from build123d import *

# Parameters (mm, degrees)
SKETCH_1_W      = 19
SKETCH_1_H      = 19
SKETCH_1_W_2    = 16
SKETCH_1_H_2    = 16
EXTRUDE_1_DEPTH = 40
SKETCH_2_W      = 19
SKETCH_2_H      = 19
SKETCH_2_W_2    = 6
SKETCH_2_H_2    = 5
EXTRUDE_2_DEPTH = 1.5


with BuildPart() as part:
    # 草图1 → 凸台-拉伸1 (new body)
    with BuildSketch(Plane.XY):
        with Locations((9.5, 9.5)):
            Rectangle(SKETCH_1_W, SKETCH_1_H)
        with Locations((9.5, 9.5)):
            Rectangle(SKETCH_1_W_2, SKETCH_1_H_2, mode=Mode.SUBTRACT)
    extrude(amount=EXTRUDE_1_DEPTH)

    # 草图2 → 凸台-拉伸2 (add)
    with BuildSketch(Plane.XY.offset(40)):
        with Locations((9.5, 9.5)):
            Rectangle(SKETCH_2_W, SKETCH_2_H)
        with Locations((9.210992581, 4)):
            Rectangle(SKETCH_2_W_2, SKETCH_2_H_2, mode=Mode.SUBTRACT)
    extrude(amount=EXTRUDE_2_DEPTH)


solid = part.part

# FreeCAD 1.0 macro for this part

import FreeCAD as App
import Part
import Sketcher
Q = App.Units.Quantity

doc = App.newDocument("Part")
body = doc.addObject("PartDesign::Body", "Body")

sketch1 = doc.addObject("Sketcher::SketchObject", "Sketch")
body.addObject(sketch1)
sketch1.AttachmentSupport = (doc.XY_Plane, [""])
sketch1.MapMode = "FlatFace"
sketch1.addGeometry([
    Part.LineSegment(App.Vector(0, 19, 0), App.Vector(0, 0, 0)),
    Part.LineSegment(App.Vector(0, 0, 0), App.Vector(19, 0, 0)),
    Part.LineSegment(App.Vector(19, 0, 0), App.Vector(19, 19, 0)),
    Part.LineSegment(App.Vector(19, 19, 0), App.Vector(0, 19, 0)),
    Part.LineSegment(App.Vector(17.5, 1.5, 0), App.Vector(1.5, 1.5, 0)),
    Part.LineSegment(App.Vector(1.5, 1.5, 0), App.Vector(1.5, 17.5, 0)),
    Part.LineSegment(App.Vector(1.5, 17.5, 0), App.Vector(17.5, 17.5, 0)),
    Part.LineSegment(App.Vector(17.5, 17.5, 0), App.Vector(17.5, 1.5, 0)),
], False)
sketch1.addConstraint([
    Sketcher.Constraint("Coincident", 0, 2, 1, 1),
    Sketcher.Constraint("Coincident", 1, 2, 2, 1),
    Sketcher.Constraint("Coincident", 2, 2, 3, 1),
    Sketcher.Constraint("Coincident", 3, 2, 0, 1),
    Sketcher.Constraint("Coincident", 4, 2, 5, 1),
    Sketcher.Constraint("Coincident", 5, 2, 6, 1),
    Sketcher.Constraint("Coincident", 6, 2, 7, 1),
    Sketcher.Constraint("Coincident", 7, 2, 4, 1),
    Sketcher.Constraint("Vertical", 0),
    Sketcher.Constraint("Horizontal", 1),
    Sketcher.Constraint("Vertical", 2),
    Sketcher.Constraint("Horizontal", 3),
    Sketcher.Constraint("Horizontal", 4),
    Sketcher.Constraint("Vertical", 5),
    Sketcher.Constraint("Horizontal", 6),
    Sketcher.Constraint("Vertical", 7),
    Sketcher.Constraint("Coincident", 0, 2, -1, 1),
    Sketcher.Constraint("Equal", 3, 0),
    Sketcher.Constraint("Equal", 6, 5),
    Sketcher.Constraint("DistanceX", 1, 1, 1, 2, Q("19 mm")),
    Sketcher.Constraint("DistanceX", 4, 2, 4, 1, Q("16 mm")),
    Sketcher.Constraint("DistanceX", -1, 1, 4, 2, Q("1.5 mm")),
    Sketcher.Constraint("DistanceY", -1, 1, 4, 2, Q("1.5 mm")),
])
pad1 = doc.addObject("PartDesign::Pad", "Pad")
body.addObject(pad1)
pad1.Profile = sketch1
pad1.Length = 40

sketch2 = doc.addObject("Sketcher::SketchObject", "Sketch001")
body.addObject(sketch2)
sketch2.AttachmentSupport = (doc.XY_Plane, [""])
sketch2.MapMode = "FlatFace"
sketch2.AttachmentOffset = App.Placement(App.Vector(0, 0, 40), App.Rotation())
sketch2.addGeometry([
    Part.LineSegment(App.Vector(0, 19, 0), App.Vector(0, 0, 0)),
    Part.LineSegment(App.Vector(0, 0, 0), App.Vector(19, 0, 0)),
    Part.LineSegment(App.Vector(19, 0, 0), App.Vector(19, 19, 0)),
    Part.LineSegment(App.Vector(19, 19, 0), App.Vector(0, 19, 0)),
    Part.LineSegment(App.Vector(12.210993, 1.5, 0), App.Vector(6.210993, 1.5, 0)),
    Part.LineSegment(App.Vector(6.210993, 1.5, 0), App.Vector(6.210993, 6.5, 0)),
    Part.LineSegment(App.Vector(6.210993, 6.5, 0), App.Vector(12.210993, 6.5, 0)),
    Part.LineSegment(App.Vector(12.210993, 6.5, 0), App.Vector(12.210993, 1.5, 0)),
], False)
sketch2.addConstraint([
    Sketcher.Constraint("Coincident", 0, 2, 1, 1),
    Sketcher.Constraint("Coincident", 1, 2, 2, 1),
    Sketcher.Constraint("Coincident", 2, 2, 3, 1),
    Sketcher.Constraint("Coincident", 3, 2, 0, 1),
    Sketcher.Constraint("Coincident", 4, 2, 5, 1),
    Sketcher.Constraint("Coincident", 5, 2, 6, 1),
    Sketcher.Constraint("Coincident", 6, 2, 7, 1),
    Sketcher.Constraint("Coincident", 7, 2, 4, 1),
    Sketcher.Constraint("Vertical", 0),
    Sketcher.Constraint("Horizontal", 1),
    Sketcher.Constraint("Vertical", 2),
    Sketcher.Constraint("Horizontal", 3),
    Sketcher.Constraint("Horizontal", 4),
    Sketcher.Constraint("Vertical", 5),
    Sketcher.Constraint("Horizontal", 6),
    Sketcher.Constraint("Vertical", 7),
    Sketcher.Constraint("Coincident", 0, 2, -1, 1),
    Sketcher.Constraint("Equal", 3, 0),
    Sketcher.Constraint("DistanceX", 1, 1, 1, 2, Q("19 mm")),
    Sketcher.Constraint("DistanceX", 4, 2, 4, 1, Q("6 mm")),
    Sketcher.Constraint("DistanceY", 5, 1, 5, 2, Q("5 mm")),
    Sketcher.Constraint("DistanceY", -1, 1, 4, 2, Q("1.5 mm")),
    Sketcher.Constraint("DistanceX", -1, 1, 4, 2, Q("6.210993 mm")),
])
pad2 = doc.addObject("PartDesign::Pad", "Pad001")
body.addObject(pad2)
pad2.Profile = sketch2
pad2.Length = 1.5

doc.recompute()
